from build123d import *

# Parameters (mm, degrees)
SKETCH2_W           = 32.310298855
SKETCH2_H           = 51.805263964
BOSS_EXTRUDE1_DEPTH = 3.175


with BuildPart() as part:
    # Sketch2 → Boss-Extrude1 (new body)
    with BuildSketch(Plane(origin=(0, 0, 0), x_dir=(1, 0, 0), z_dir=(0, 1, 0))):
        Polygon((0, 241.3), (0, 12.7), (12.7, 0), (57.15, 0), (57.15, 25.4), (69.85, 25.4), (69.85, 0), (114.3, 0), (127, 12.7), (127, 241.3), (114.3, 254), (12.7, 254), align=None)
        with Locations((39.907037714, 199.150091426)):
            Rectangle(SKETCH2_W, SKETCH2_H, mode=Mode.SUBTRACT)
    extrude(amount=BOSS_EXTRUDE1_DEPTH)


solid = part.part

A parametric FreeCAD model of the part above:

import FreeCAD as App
import Part
import Sketcher
from FreeCAD import Vector
Q = App.Units.Quantity

doc = App.newDocument("Part")
body = doc.addObject("PartDesign::Body", "Body")

# Sketch on XZ plane
sketch1 = body.newObject("Sketcher::SketchObject", "Sketch")
sketch1.AttachmentSupport = (doc.getObject("XZ_Plane"), [""])
sketch1.MapMode = "FlatFace"
sketch1.addGeometry([
    Part.LineSegment(Vector(0, -241, 0), Vector(0, -13, 0)),  # 0
    Part.LineSegment(Vector(0, -13, 0), Vector(13, 0, 0)),  # 1
    Part.LineSegment(Vector(13, 0, 0), Vector(57, 0, 0)),  # 2
    Part.LineSegment(Vector(57, 0, 0), Vector(57, -25, 0)),  # 3
    Part.LineSegment(Vector(57, -25, 0), Vector(70, -25, 0)),  # 4
    Part.LineSegment(Vector(70, -25, 0), Vector(70, 0, 0)),  # 5
    Part.LineSegment(Vector(70, 0, 0), Vector(114, 0, 0)),  # 6
    Part.LineSegment(Vector(114, 0, 0), Vector(127, -13, 0)),  # 7
    Part.LineSegment(Vector(127, -13, 0), Vector(127, -241, 0)),  # 8
    Part.LineSegment(Vector(127, -241, 0), Vector(114, -254, 0)),  # 9
    Part.LineSegment(Vector(114, -254, 0), Vector(13, -254, 0)),  # 10
    Part.LineSegment(Vector(13, -254, 0), Vector(0, -241, 0)),  # 11
    Part.LineSegment(Vector(56, -173, 0), Vector(24, -173, 0)),  # 12
    Part.LineSegment(Vector(24, -173, 0), Vector(24, -225, 0)),  # 13
    Part.LineSegment(Vector(24, -225, 0), Vector(56, -225, 0)),  # 14
    Part.LineSegment(Vector(56, -225, 0), Vector(56, -173, 0)),  # 15
], False)
sketch1.addConstraint([
    Sketcher.Constraint("Coincident", 0, 2, 1, 1),
    Sketcher.Constraint("Coincident", 1, 2, 2, 1),
    Sketcher.Constraint("Coincident", 2, 2, 3, 1),
    Sketcher.Constraint("Coincident", 3, 2, 4, 1),
    Sketcher.Constraint("Coincident", 4, 2, 5, 1),
    Sketcher.Constraint("Coincident", 5, 2, 6, 1),
    Sketcher.Constraint("Coincident", 6, 2, 7, 1),
    Sketcher.Constraint("Coincident", 7, 2, 8, 1),
    Sketcher.Constraint("Coincident", 8, 2, 9, 1),
    Sketcher.Constraint("Coincident", 9, 2, 10, 1),
    Sketcher.Constraint("Coincident", 10, 2, 11, 1),
    Sketcher.Constraint("Coincident", 11, 2, 0, 1),
    Sketcher.Constraint("Coincident", 12, 2, 13, 1),
    Sketcher.Constraint("Coincident", 13, 2, 14, 1),
    Sketcher.Constraint("Coincident", 14, 2, 15, 1),
    Sketcher.Constraint("Coincident", 15, 2, 12, 1),
    Sketcher.Constraint("Vertical", 0),
    Sketcher.Constraint("Horizontal", 2),
    Sketcher.Constraint("Vertical", 3),
    Sketcher.Constraint("Horizontal", 4),
    Sketcher.Constraint("Vertical", 5),
    Sketcher.Constraint("Horizontal", 6),
    Sketcher.Constraint("Vertical", 8),
    Sketcher.Constraint("Horizontal", 10),
    Sketcher.Constraint("Horizontal", 12),
    Sketcher.Constraint("Vertical", 13),
    Sketcher.Constraint("Horizontal", 14),
    Sketcher.Constraint("Vertical", 15),
    Sketcher.Constraint("PointOnObject", 0, 2, -2),
    Sketcher.Constraint("PointOnObject", 1, 2, -1),
    Sketcher.Constraint("PointOnObject", 5, 2, -1),
    Sketcher.Constraint("Perpendicular", 1, 7),
    Sketcher.Constraint("Perpendicular", 7, 9),
    Sketcher.Constraint("Perpendicular", 9, 11),
    Sketcher.Constraint("Horizontal", 0, 2, 7, 2),
    Sketcher.Constraint("Horizontal", 8, 2, 11, 2),
    Sketcher.Constraint("Vertical", 6, 2, 9, 2),
    Sketcher.Constraint("Vertical", 1, 2, 10, 2),
    Sketcher.Constraint("Equal", 2, 6),
    Sketcher.Constraint("DistanceX", 10, 2, 10, 1, Q("4 in")),
    Sketcher.Constraint("DistanceY", 0, 1, 0, 2, Q("9 in")),
    Sketcher.Constraint("DistanceY", 3, 2, 3, 1, Q("1 in")),
    Sketcher.Constraint("DistanceX", 4, 1, 4, 2, Q("0.5 in")),
    Sketcher.Constraint("DistanceX", -1, 1, 7, 2, Q("5 in")),
    Sketcher.Constraint("DistanceX", 12, 2, 12, 1, 32.310299),
    Sketcher.Constraint("DistanceY", 13, 2, 13, 1, 51.805264),
    Sketcher.Constraint("DistanceX", -1, 1, 12, 2, 23.751888),
    Sketcher.Constraint("DistanceY", 12, 2, -1, 1, 173.247459),
])
pad1 = body.newObject("PartDesign::Pad", "Pad")
pad1.Profile = sketch1
pad1.Length = Q("0.125 in")
pad1.Reversed = True

doc.recompute()
